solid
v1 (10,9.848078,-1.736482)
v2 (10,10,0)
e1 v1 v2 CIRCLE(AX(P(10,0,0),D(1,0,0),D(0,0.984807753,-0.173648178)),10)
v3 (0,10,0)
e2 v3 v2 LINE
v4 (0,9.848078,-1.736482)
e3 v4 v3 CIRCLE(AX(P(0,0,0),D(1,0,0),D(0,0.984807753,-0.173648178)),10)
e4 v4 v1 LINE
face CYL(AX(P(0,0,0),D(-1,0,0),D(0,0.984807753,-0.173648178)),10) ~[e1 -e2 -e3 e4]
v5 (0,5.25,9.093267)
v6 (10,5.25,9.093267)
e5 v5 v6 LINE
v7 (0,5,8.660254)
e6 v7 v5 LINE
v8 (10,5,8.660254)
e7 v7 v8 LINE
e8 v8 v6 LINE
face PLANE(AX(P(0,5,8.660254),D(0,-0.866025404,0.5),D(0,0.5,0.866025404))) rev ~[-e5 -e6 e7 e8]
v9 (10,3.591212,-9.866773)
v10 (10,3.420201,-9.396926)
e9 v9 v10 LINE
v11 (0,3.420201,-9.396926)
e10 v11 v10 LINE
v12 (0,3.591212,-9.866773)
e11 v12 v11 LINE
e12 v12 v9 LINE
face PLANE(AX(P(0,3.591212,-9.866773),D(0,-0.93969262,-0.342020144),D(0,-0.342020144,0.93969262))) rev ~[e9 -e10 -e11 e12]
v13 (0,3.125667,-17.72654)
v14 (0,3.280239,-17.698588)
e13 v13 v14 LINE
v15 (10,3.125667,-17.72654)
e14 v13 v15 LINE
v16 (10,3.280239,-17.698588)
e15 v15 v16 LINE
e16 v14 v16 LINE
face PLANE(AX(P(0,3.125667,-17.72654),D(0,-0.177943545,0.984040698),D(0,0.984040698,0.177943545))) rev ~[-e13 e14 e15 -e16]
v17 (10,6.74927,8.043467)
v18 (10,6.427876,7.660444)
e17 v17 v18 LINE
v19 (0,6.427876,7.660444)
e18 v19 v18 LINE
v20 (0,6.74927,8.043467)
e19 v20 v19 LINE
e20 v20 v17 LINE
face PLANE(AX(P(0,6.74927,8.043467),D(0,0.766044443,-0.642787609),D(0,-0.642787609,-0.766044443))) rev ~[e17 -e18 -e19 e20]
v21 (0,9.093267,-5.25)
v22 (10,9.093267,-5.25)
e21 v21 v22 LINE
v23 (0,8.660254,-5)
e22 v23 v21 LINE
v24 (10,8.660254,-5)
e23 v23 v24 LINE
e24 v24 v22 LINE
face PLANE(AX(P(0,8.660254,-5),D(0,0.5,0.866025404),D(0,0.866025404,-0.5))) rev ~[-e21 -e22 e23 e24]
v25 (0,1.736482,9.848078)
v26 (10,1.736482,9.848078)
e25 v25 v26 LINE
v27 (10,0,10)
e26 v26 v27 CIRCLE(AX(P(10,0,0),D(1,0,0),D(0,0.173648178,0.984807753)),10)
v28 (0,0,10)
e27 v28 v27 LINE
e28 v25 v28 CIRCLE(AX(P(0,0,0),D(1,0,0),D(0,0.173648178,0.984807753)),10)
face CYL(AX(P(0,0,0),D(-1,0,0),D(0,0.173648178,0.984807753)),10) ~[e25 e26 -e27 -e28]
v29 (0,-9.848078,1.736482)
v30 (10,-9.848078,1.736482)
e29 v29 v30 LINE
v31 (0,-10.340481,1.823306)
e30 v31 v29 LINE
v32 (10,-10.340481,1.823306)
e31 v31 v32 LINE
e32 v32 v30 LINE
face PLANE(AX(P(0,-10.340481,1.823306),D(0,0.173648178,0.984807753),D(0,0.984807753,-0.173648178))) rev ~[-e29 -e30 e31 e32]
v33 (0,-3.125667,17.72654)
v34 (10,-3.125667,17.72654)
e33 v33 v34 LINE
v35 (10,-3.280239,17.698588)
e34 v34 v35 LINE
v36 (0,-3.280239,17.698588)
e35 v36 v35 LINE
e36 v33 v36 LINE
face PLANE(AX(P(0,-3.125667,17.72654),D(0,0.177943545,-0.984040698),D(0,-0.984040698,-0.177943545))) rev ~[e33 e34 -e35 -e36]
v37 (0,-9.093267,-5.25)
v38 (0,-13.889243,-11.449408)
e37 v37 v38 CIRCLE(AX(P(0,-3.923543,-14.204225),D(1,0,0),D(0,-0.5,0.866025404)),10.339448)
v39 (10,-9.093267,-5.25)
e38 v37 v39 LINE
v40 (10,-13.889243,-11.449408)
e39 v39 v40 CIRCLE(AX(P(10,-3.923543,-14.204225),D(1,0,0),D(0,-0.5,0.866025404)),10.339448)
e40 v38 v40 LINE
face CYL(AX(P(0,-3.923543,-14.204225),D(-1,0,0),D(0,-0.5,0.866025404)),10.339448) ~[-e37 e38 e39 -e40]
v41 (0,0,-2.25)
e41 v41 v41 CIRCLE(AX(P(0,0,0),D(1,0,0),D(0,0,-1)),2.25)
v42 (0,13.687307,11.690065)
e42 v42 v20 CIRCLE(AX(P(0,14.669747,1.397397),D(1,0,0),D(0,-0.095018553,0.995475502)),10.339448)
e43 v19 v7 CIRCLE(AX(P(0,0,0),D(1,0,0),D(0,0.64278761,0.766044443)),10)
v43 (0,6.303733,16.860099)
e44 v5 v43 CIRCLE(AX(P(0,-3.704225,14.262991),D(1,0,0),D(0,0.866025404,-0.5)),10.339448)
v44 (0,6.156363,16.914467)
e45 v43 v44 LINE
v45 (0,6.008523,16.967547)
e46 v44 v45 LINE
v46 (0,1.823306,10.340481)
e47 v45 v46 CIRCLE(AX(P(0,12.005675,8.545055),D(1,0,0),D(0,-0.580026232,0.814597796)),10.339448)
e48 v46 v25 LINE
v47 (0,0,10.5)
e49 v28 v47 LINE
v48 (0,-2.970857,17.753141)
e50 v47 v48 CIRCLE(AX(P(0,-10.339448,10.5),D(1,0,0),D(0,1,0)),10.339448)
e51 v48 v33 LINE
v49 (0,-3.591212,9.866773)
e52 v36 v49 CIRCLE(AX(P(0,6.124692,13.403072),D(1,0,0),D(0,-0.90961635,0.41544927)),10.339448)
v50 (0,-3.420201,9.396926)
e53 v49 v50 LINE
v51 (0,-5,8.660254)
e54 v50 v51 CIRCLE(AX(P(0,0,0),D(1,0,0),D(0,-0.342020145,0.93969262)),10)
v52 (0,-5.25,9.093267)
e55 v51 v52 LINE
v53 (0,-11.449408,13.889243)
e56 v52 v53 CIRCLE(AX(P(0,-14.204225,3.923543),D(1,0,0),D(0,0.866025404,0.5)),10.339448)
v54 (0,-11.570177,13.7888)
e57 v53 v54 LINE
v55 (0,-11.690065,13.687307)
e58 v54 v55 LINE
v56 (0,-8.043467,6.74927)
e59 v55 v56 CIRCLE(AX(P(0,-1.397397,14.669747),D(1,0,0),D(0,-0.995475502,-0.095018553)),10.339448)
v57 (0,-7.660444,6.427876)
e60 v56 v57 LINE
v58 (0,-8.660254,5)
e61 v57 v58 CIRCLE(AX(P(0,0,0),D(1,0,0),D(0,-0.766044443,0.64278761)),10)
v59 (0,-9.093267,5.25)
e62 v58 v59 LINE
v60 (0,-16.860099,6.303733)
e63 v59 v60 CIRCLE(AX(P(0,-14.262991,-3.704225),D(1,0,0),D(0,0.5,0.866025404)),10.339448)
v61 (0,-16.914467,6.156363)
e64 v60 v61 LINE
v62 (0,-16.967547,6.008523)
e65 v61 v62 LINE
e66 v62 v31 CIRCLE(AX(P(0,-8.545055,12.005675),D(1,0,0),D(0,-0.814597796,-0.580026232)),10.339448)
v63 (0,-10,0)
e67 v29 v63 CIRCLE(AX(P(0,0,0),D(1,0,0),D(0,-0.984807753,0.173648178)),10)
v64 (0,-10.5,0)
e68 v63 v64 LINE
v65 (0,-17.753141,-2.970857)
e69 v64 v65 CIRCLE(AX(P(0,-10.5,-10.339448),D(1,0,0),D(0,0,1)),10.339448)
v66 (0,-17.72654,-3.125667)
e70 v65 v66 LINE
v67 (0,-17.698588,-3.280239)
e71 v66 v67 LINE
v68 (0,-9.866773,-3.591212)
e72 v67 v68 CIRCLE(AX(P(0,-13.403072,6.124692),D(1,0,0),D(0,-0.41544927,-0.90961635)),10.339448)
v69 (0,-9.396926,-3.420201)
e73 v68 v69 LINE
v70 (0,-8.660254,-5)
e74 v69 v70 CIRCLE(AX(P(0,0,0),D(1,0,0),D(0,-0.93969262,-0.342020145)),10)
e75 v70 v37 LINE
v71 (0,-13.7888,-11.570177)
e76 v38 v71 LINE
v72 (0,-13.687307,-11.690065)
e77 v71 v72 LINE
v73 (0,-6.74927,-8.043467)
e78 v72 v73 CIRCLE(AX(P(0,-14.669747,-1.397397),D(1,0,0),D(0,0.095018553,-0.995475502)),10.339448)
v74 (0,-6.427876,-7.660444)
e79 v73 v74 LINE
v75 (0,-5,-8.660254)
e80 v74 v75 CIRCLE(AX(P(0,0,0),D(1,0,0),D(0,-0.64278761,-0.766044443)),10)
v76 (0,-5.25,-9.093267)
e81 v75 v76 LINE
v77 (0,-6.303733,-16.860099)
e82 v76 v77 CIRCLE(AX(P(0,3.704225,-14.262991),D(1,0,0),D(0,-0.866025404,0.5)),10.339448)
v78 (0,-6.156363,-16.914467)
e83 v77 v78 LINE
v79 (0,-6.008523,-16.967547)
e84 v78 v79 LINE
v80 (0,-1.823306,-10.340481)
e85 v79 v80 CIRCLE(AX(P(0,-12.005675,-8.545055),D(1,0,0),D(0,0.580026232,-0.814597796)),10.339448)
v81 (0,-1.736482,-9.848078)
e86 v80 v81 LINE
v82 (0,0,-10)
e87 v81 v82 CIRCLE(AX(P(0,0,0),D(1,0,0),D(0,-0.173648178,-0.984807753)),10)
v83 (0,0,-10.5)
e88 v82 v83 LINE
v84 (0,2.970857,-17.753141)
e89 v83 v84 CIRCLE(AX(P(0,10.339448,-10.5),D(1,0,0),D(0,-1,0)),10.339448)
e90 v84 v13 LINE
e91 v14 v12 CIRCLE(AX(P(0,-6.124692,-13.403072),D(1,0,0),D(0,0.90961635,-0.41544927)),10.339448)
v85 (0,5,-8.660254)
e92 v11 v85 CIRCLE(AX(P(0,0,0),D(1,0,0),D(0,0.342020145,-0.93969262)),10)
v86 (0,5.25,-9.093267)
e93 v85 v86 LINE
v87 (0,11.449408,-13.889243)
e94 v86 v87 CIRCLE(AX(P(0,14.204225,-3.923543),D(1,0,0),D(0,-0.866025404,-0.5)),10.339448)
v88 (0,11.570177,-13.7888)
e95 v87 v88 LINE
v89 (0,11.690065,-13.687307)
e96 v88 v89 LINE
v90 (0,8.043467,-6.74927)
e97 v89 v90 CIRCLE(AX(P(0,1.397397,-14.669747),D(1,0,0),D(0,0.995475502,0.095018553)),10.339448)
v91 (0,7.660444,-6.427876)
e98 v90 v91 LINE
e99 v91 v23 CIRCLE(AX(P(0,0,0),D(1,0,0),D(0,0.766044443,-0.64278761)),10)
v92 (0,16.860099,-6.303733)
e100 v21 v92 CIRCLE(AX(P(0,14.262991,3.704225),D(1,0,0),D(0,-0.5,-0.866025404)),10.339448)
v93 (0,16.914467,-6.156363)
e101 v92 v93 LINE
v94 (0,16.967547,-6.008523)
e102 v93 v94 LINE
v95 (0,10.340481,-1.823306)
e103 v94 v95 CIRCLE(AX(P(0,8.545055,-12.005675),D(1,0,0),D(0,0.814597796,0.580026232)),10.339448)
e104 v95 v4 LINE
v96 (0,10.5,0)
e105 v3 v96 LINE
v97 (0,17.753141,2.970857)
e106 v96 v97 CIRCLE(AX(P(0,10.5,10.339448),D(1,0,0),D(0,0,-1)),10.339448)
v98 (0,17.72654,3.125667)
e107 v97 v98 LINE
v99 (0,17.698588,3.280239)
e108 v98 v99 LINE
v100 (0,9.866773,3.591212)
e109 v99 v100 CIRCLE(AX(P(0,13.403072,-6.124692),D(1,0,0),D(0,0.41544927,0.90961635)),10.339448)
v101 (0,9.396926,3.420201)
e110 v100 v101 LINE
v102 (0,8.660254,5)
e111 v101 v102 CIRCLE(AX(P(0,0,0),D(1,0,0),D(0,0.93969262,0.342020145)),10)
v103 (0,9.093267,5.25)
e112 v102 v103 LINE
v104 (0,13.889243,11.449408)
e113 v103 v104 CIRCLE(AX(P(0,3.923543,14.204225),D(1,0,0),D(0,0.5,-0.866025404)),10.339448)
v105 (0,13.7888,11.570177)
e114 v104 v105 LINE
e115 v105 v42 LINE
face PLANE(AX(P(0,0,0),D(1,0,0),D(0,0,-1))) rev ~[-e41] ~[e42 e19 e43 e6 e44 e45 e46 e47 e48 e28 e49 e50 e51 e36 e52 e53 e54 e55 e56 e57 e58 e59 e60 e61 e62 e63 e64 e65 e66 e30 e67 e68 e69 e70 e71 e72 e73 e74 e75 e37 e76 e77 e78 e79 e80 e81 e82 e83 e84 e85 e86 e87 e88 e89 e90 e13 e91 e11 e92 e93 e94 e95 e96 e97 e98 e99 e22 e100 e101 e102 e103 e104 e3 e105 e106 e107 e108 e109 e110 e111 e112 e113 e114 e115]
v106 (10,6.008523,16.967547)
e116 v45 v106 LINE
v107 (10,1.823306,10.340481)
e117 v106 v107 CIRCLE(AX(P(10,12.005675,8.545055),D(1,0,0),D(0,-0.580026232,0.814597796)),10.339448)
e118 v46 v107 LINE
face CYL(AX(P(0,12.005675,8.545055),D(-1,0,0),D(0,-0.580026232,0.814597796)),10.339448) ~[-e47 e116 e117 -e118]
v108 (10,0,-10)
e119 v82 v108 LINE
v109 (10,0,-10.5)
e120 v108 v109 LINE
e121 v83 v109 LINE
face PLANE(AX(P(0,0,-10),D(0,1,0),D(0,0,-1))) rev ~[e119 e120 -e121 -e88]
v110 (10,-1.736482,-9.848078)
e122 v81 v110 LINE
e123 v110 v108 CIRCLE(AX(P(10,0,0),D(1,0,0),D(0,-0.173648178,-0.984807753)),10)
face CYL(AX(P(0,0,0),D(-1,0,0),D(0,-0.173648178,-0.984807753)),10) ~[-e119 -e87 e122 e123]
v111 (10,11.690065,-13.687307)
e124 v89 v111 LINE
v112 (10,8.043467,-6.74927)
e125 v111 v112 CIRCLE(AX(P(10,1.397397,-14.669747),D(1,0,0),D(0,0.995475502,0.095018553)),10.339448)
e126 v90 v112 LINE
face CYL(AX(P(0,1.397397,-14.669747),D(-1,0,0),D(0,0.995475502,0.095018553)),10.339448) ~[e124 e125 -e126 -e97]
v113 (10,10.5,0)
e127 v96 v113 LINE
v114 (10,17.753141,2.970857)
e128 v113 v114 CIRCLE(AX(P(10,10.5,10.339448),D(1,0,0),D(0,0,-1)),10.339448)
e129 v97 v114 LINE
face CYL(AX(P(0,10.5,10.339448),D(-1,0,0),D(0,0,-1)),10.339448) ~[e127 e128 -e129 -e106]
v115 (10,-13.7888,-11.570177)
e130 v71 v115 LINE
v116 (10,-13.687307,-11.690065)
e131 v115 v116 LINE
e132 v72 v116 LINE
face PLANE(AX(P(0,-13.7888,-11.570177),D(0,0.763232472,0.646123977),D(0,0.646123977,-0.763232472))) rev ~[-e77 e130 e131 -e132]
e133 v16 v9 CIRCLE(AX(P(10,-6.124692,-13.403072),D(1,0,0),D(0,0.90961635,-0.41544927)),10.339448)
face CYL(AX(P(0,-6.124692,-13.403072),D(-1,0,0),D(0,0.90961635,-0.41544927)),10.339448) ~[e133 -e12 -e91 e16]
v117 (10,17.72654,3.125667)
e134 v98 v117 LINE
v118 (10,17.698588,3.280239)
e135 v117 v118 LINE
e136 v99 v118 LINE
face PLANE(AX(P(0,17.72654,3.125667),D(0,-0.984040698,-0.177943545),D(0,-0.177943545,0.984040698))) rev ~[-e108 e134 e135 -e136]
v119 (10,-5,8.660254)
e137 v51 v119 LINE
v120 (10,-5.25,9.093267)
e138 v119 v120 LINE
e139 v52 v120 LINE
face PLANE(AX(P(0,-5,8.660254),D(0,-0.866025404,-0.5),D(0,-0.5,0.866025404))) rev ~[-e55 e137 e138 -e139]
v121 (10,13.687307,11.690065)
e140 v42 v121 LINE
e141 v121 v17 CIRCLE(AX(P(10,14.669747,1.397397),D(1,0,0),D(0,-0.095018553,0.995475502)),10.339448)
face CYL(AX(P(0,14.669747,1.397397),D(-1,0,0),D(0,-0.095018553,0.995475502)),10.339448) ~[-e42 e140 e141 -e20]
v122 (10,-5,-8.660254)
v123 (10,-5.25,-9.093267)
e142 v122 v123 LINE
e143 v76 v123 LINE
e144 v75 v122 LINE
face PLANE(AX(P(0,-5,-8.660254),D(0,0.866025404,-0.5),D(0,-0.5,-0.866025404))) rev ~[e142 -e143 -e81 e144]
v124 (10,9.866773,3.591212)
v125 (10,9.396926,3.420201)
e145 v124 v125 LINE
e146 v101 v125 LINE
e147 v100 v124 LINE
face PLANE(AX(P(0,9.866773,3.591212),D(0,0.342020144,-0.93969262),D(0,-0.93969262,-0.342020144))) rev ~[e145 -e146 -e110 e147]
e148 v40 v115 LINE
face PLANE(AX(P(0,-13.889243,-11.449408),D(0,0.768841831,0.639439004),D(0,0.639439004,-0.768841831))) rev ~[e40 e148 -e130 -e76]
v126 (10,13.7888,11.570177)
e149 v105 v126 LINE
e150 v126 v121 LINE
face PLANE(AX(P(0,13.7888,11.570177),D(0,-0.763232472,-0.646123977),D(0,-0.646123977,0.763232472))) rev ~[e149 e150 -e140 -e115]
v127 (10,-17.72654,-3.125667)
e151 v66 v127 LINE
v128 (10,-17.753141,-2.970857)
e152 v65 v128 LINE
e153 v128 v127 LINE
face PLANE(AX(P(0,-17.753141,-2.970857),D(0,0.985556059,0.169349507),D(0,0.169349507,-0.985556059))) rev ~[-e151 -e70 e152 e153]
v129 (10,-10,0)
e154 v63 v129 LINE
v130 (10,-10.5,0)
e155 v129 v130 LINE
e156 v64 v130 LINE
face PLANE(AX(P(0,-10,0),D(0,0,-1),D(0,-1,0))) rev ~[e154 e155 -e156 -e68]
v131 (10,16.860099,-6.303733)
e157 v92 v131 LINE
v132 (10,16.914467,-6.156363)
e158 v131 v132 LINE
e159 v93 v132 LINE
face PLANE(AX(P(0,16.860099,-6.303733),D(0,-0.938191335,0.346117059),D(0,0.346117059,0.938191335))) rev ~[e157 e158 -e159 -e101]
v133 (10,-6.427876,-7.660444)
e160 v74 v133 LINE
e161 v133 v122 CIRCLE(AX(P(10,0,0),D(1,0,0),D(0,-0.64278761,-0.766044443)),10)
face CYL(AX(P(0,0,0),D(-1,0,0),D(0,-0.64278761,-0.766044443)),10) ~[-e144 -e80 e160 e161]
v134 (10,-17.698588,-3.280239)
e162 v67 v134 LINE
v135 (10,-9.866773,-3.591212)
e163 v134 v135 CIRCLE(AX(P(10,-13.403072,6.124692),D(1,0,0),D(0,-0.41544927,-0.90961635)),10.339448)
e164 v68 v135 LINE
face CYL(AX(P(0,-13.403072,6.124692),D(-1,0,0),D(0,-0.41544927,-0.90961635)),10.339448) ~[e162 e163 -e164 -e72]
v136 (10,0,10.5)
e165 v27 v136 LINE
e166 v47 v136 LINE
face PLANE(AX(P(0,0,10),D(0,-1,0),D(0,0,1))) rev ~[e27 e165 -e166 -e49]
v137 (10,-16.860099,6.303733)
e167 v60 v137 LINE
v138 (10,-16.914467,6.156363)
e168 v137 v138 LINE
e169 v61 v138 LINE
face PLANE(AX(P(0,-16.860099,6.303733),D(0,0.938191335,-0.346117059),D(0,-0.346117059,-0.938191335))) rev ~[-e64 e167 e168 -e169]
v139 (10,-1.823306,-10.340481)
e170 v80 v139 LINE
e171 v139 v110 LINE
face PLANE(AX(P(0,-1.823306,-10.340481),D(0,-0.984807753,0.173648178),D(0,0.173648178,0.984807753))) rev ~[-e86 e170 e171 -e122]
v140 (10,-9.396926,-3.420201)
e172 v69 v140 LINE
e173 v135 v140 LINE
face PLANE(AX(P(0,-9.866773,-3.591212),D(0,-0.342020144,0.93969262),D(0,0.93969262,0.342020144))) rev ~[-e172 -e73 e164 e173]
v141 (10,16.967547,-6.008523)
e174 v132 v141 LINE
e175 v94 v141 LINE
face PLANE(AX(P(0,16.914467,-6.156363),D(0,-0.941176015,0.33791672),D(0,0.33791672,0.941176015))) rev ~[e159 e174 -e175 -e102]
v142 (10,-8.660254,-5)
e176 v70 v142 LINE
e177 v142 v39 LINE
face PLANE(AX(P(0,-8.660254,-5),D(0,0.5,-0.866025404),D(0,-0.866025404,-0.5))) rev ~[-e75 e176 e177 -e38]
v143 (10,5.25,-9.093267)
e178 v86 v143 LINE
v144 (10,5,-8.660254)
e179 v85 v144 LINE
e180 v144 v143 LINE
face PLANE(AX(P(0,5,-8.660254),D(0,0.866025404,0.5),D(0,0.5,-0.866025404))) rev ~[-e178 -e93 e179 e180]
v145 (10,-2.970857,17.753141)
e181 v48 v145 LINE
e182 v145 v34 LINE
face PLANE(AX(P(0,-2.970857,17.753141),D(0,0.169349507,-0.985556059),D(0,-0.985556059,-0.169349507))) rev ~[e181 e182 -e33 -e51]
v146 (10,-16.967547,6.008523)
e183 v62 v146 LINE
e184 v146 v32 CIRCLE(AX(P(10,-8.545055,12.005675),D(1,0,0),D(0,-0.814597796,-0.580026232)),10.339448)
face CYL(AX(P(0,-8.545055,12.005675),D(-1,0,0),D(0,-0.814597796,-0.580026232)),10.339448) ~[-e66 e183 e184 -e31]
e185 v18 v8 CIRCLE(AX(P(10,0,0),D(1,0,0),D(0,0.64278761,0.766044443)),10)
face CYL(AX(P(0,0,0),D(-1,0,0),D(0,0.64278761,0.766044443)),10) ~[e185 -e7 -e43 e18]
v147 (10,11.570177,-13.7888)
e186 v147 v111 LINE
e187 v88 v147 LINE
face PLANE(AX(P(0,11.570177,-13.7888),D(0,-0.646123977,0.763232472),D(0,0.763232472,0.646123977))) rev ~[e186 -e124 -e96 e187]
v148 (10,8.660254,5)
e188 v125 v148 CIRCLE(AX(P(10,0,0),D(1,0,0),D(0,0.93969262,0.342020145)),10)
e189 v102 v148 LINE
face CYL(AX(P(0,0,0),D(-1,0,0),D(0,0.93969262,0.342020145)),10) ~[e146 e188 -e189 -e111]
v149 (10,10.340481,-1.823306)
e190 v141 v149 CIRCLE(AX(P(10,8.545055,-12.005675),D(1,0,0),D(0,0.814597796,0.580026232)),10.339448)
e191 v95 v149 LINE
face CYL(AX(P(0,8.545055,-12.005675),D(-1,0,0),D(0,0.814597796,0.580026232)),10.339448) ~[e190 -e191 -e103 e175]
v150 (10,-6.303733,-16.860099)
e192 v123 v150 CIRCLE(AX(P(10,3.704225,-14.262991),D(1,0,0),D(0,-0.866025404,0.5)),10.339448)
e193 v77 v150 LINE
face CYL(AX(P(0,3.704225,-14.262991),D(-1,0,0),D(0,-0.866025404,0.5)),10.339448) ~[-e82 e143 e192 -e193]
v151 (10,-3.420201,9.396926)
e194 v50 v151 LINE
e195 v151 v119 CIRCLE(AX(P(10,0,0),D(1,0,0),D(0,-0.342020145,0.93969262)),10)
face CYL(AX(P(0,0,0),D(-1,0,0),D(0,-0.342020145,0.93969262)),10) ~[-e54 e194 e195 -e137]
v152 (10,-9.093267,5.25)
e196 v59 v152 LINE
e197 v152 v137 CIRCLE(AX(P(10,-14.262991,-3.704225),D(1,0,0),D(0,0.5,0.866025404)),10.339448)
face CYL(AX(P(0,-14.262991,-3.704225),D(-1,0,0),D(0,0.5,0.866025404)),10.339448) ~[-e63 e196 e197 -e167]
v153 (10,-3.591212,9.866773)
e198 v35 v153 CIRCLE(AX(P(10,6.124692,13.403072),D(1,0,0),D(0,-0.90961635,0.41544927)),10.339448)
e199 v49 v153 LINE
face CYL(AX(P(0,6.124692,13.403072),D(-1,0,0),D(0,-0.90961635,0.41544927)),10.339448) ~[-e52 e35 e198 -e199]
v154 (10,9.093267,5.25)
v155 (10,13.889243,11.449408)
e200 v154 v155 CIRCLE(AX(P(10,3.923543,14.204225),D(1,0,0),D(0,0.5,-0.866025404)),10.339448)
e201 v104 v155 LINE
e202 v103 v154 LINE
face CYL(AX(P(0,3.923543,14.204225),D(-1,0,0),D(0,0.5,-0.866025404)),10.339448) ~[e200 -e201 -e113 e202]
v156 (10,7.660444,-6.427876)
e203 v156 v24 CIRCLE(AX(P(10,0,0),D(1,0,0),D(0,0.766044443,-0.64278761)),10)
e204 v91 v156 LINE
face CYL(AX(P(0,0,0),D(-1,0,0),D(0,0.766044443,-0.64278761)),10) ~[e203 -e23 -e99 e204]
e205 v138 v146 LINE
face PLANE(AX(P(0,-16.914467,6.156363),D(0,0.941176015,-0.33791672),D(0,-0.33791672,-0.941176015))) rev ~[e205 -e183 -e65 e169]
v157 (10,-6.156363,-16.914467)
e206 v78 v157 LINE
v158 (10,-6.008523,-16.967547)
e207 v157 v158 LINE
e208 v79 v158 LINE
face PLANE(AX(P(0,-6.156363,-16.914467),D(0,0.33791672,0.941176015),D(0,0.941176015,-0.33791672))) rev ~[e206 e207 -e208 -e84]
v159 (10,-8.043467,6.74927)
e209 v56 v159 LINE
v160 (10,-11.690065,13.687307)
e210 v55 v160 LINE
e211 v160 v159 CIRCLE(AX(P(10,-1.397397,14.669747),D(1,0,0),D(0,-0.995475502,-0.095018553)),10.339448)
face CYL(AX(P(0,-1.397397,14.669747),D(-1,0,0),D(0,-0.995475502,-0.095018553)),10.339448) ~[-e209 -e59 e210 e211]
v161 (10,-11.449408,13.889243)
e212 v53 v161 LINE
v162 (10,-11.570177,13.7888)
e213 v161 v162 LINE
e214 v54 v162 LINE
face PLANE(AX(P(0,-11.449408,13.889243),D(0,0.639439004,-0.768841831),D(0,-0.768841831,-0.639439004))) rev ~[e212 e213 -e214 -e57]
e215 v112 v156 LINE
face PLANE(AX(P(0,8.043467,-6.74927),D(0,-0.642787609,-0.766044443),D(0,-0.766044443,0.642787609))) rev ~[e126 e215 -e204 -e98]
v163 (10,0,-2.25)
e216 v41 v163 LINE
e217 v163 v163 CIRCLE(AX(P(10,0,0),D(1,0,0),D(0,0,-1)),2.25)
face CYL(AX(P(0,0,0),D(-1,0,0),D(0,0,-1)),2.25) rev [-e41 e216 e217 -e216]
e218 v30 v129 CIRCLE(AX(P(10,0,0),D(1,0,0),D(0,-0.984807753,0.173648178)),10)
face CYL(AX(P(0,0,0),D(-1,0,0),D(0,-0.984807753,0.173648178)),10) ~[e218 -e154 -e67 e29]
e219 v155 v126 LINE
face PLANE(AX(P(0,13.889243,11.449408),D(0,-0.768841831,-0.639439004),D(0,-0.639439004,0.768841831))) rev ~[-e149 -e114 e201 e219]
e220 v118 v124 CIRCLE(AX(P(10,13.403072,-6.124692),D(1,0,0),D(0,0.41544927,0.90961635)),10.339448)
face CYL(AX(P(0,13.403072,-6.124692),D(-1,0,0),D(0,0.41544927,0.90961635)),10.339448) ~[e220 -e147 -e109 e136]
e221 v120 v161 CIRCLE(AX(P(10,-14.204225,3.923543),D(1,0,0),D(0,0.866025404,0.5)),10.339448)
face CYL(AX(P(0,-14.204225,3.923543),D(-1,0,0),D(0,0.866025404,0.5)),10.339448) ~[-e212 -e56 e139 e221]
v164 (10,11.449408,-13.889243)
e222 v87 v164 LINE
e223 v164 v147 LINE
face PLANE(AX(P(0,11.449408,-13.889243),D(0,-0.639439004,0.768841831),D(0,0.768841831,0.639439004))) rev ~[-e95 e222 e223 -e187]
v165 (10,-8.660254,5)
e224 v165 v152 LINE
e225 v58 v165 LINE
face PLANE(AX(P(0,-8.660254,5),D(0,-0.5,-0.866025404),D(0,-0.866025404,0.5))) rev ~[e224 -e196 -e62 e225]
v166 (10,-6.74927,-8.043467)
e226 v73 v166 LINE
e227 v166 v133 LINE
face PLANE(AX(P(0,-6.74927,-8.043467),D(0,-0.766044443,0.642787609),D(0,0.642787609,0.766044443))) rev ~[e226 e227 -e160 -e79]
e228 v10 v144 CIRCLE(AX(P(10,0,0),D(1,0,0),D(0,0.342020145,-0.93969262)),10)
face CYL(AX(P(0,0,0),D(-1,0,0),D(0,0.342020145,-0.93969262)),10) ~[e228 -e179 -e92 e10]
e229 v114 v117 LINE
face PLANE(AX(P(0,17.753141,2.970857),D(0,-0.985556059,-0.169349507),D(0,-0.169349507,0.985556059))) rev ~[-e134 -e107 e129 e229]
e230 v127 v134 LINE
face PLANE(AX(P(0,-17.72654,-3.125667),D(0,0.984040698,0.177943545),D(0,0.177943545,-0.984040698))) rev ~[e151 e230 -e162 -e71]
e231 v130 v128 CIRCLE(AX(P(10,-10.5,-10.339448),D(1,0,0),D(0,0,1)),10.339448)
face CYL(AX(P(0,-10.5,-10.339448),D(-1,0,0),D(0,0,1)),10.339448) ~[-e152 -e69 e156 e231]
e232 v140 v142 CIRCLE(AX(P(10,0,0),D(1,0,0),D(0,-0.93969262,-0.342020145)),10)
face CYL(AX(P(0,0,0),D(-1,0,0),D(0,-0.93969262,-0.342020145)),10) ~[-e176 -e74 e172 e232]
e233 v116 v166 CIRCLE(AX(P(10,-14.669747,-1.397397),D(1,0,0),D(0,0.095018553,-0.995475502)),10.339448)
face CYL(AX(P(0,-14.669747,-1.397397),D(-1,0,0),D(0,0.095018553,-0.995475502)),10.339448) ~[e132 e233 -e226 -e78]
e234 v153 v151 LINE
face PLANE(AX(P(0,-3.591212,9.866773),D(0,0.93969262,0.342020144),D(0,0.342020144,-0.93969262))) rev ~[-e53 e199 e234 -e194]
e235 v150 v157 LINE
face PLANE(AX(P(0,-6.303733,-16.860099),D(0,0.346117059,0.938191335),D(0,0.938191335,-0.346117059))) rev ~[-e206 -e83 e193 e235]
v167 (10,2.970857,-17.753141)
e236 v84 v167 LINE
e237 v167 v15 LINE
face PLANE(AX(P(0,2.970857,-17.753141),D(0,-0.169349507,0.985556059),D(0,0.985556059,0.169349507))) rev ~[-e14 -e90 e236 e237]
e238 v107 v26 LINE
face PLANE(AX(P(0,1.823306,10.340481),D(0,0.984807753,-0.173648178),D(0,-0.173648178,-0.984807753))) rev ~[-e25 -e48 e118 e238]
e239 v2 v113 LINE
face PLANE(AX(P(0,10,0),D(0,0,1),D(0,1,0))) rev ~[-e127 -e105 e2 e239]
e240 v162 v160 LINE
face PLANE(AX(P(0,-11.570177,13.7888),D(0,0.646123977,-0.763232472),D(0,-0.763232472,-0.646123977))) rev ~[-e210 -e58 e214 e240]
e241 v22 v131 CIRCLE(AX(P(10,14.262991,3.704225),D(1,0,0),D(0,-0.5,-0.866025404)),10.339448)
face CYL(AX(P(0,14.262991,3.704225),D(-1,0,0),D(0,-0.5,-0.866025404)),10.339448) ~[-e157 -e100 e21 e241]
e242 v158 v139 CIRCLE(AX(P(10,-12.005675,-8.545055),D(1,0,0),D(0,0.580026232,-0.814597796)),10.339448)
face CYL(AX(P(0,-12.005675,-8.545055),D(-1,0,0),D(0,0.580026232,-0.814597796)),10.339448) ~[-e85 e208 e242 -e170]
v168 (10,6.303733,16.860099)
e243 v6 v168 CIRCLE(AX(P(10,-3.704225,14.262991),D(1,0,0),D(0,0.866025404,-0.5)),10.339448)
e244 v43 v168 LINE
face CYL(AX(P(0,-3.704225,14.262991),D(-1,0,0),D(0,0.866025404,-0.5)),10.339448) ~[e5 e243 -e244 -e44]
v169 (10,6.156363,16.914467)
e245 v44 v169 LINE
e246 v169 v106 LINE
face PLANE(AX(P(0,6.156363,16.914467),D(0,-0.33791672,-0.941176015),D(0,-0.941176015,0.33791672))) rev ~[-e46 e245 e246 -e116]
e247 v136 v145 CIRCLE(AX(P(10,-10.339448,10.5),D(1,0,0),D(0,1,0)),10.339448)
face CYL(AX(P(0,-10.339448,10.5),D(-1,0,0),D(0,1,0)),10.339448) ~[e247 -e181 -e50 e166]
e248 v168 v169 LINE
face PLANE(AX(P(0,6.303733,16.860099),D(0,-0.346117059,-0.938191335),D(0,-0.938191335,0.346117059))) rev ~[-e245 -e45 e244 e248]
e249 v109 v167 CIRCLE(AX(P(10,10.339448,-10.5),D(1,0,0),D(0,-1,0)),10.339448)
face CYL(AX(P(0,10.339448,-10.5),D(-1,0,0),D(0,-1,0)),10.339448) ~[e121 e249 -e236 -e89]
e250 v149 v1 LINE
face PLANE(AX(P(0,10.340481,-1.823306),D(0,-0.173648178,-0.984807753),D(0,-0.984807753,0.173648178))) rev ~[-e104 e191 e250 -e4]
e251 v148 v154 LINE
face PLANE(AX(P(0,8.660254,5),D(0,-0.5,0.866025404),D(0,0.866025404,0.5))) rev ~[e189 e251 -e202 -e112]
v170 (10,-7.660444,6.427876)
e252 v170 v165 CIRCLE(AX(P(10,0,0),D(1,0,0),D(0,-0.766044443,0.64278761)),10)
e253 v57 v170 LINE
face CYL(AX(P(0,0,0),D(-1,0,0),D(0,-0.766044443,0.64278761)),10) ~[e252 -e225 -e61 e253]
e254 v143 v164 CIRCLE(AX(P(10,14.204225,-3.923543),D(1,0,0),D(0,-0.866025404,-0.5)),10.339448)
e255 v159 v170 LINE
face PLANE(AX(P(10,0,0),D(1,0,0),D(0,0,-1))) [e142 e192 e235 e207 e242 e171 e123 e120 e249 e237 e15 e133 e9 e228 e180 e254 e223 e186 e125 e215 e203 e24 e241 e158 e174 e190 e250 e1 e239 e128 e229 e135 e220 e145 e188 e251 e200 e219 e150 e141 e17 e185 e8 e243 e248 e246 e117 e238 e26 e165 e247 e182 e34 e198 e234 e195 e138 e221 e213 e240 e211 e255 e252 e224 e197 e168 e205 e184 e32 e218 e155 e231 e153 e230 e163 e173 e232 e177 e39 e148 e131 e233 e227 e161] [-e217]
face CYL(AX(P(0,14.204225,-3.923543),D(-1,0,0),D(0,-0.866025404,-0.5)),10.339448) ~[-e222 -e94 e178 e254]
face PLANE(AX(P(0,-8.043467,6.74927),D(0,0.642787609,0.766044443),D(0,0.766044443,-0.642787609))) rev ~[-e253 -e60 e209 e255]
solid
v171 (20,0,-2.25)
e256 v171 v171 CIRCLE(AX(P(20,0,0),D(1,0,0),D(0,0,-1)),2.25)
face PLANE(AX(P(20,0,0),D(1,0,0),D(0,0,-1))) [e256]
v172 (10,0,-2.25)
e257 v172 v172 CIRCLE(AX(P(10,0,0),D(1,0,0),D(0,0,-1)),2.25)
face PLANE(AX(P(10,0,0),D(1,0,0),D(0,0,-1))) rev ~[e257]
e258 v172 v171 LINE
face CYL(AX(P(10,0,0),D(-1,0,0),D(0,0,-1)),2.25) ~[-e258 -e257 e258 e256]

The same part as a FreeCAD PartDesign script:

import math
import FreeCAD as App
import Part
import Sketcher

V = App.Vector
Q = App.Units.Quantity

doc = App.newDocument("Part")
body = doc.addObject("PartDesign::Body", "Body")

# Sketch on YZ plane
sketch1 = doc.addObject("Sketcher::SketchObject", "Sketch")
body.addObject(sketch1)
sketch1.AttachmentSupport = (doc.YZ_Plane, [""])
sketch1.MapMode = "FlatFace"
sketch1.addGeometry([
    Part.LineSegment(V(3.59, -9.87, 0), V(3.42, -9.4, 0)),  # 0
    Part.ArcOfCircle(Part.Circle(V(0, 0, 0), V(0, 0, 1), 10), math.radians(-70), math.radians(-60)),  # 1
    Part.LineSegment(V(5, -8.66, 0), V(5.25, -9.09, 0)),  # 2
    Part.ArcOfCircle(Part.Circle(V(14.2, -3.92, 0), V(0, 0, 1), 10.34), math.radians(-150), math.radians(-105)),  # 3
    Part.LineSegment(V(11.45, -13.89, 0), V(11.57, -13.79, 0)),  # 4
    Part.LineSegment(V(11.57, -13.79, 0), V(11.69, -13.69, 0)),  # 5
    Part.ArcOfCircle(Part.Circle(V(1.4, -14.67, 0), V(0, 0, 1), 10.34), math.radians(5), math.radians(50)),  # 6
    Part.LineSegment(V(8.04, -6.75, 0), V(7.66, -6.43, 0)),  # 7
    Part.ArcOfCircle(Part.Circle(V(0, 0, 0), V(0, 0, 1), 10), math.radians(-40), math.radians(-30)),  # 8
    Part.LineSegment(V(8.66, -5, 0), V(9.09, -5.25, 0)),  # 9
    Part.ArcOfCircle(Part.Circle(V(14.26, 3.7, 0), V(0, 0, 1), 10.34), math.radians(-120), math.radians(-75)),  # 10
    Part.LineSegment(V(16.86, -6.3, 0), V(16.91, -6.16, 0)),  # 11
    Part.LineSegment(V(16.91, -6.16, 0), V(16.97, -6.01, 0)),  # 12
    Part.ArcOfCircle(Part.Circle(V(8.55, -12.01, 0), V(0, 0, 1), 10.34), math.radians(35), math.radians(80)),  # 13
    Part.LineSegment(V(10.34, -1.82, 0), V(9.85, -1.74, 0)),  # 14
    Part.ArcOfCircle(Part.Circle(V(0, 0, 0), V(0, 0, 1), 10), math.radians(-10), math.radians(0)),  # 15
    Part.LineSegment(V(10, 0, 0), V(10.5, 0, 0)),  # 16
    Part.ArcOfCircle(Part.Circle(V(10.5, 10.34, 0), V(0, 0, 1), 10.34), math.radians(-90), math.radians(-45)),  # 17
    Part.LineSegment(V(17.75, 2.97, 0), V(17.73, 3.13, 0)),  # 18
    Part.LineSegment(V(17.73, 3.13, 0), V(17.7, 3.28, 0)),  # 19
    Part.ArcOfCircle(Part.Circle(V(13.4, -6.12, 0), V(0, 0, 1), 10.34), math.radians(65), math.radians(110)),  # 20
    Part.LineSegment(V(9.87, 3.59, 0), V(9.4, 3.42, 0)),  # 21
    Part.ArcOfCircle(Part.Circle(V(0, 0, 0), V(0, 0, 1), 10), math.radians(20), math.radians(30)),  # 22
    Part.LineSegment(V(8.66, 5, 0), V(9.09, 5.25, 0)),  # 23
    Part.ArcOfCircle(Part.Circle(V(3.92, 14.2, 0), V(0, 0, 1), 10.34), math.radians(-60), math.radians(-15)),  # 24
    Part.LineSegment(V(13.89, 11.45, 0), V(13.79, 11.57, 0)),  # 25
    Part.LineSegment(V(13.79, 11.57, 0), V(13.69, 11.69, 0)),  # 26
    Part.ArcOfCircle(Part.Circle(V(14.67, 1.4, 0), V(0, 0, 1), 10.34), math.radians(95), math.radians(140)),  # 27
    Part.LineSegment(V(6.75, 8.04, 0), V(6.43, 7.66, 0)),  # 28
    Part.ArcOfCircle(Part.Circle(V(0, 0, 0), V(0, 0, 1), 10), math.radians(50), math.radians(60)),  # 29
    Part.LineSegment(V(5, 8.66, 0), V(5.25, 9.09, 0)),  # 30
    Part.ArcOfCircle(Part.Circle(V(-3.7, 14.26, 0), V(0, 0, 1), 10.34), math.radians(-30), math.radians(15)),  # 31
    Part.LineSegment(V(6.3, 16.86, 0), V(6.16, 16.91, 0)),  # 32
    Part.LineSegment(V(6.16, 16.91, 0), V(6.01, 16.97, 0)),  # 33
    Part.ArcOfCircle(Part.Circle(V(12.01, 8.55, 0), V(0, 0, 1), 10.34), math.radians(125), math.radians(170)),  # 34
    Part.LineSegment(V(1.82, 10.34, 0), V(1.74, 9.85, 0)),  # 35
    Part.ArcOfCircle(Part.Circle(V(0, 0, 0), V(0, 0, 1), 10), math.radians(80), math.radians(90)),  # 36
    Part.LineSegment(V(0, 10, 0), V(0, 10.5, 0)),  # 37
    Part.ArcOfCircle(Part.Circle(V(-10.34, 10.5, 0), V(0, 0, 1), 10.34), math.radians(0), math.radians(45)),  # 38
    Part.LineSegment(V(-2.97, 17.75, 0), V(-3.13, 17.73, 0)),  # 39
    Part.LineSegment(V(-3.13, 17.73, 0), V(-3.28, 17.7, 0)),  # 40
    Part.ArcOfCircle(Part.Circle(V(6.12, 13.4, 0), V(0, 0, 1), 10.34), math.radians(155), math.radians(200)),  # 41
    Part.LineSegment(V(-3.59, 9.87, 0), V(-3.42, 9.4, 0)),  # 42
    Part.ArcOfCircle(Part.Circle(V(0, 0, 0), V(0, 0, 1), 10), math.radians(110), math.radians(120)),  # 43
    Part.LineSegment(V(-5, 8.66, 0), V(-5.25, 9.09, 0)),  # 44
    Part.ArcOfCircle(Part.Circle(V(-14.2, 3.92, 0), V(0, 0, 1), 10.34), math.radians(30), math.radians(75)),  # 45
    Part.LineSegment(V(-11.45, 13.89, 0), V(-11.57, 13.79, 0)),  # 46
    Part.LineSegment(V(-11.57, 13.79, 0), V(-11.69, 13.69, 0)),  # 47
    Part.ArcOfCircle(Part.Circle(V(-1.4, 14.67, 0), V(0, 0, 1), 10.34), math.radians(-175), math.radians(-130)),  # 48
    Part.LineSegment(V(-8.04, 6.75, 0), V(-7.66, 6.43, 0)),  # 49
    Part.ArcOfCircle(Part.Circle(V(0, 0, 0), V(0, 0, 1), 10), math.radians(140), math.radians(150)),  # 50
    Part.LineSegment(V(-8.66, 5, 0), V(-9.09, 5.25, 0)),  # 51
    Part.ArcOfCircle(Part.Circle(V(-14.26, -3.7, 0), V(0, 0, 1), 10.34), math.radians(60), math.radians(105)),  # 52
    Part.LineSegment(V(-16.86, 6.3, 0), V(-16.91, 6.16, 0)),  # 53
    Part.LineSegment(V(-16.91, 6.16, 0), V(-16.97, 6.01, 0)),  # 54
    Part.ArcOfCircle(Part.Circle(V(-8.55, 12.01, 0), V(0, 0, 1), 10.34), math.radians(-145), math.radians(-100)),  # 55
    Part.LineSegment(V(-10.34, 1.82, 0), V(-9.85, 1.74, 0)),  # 56
    Part.ArcOfCircle(Part.Circle(V(0, 0, 0), V(0, 0, 1), 10), math.radians(170), math.radians(180)),  # 57
    Part.LineSegment(V(-10, 0, 0), V(-10.5, 0, 0)),  # 58
    Part.ArcOfCircle(Part.Circle(V(-10.5, -10.34, 0), V(0, 0, 1), 10.34), math.radians(90), math.radians(135)),  # 59
    Part.LineSegment(V(-17.75, -2.97, 0), V(-17.73, -3.13, 0)),  # 60
    Part.LineSegment(V(-17.73, -3.13, 0), V(-17.7, -3.28, 0)),  # 61
    Part.ArcOfCircle(Part.Circle(V(-13.4, 6.12, 0), V(0, 0, 1), 10.34), math.radians(-115), math.radians(-70)),  # 62
    Part.LineSegment(V(-9.87, -3.59, 0), V(-9.4, -3.42, 0)),  # 63
    Part.ArcOfCircle(Part.Circle(V(0, 0, 0), V(0, 0, 1), 10), math.radians(-160), math.radians(-150)),  # 64
    Part.LineSegment(V(-8.66, -5, 0), V(-9.09, -5.25, 0)),  # 65
    Part.ArcOfCircle(Part.Circle(V(-3.92, -14.2, 0), V(0, 0, 1), 10.34), math.radians(120), math.radians(165)),  # 66
    Part.LineSegment(V(-13.89, -11.45, 0), V(-13.79, -11.57, 0)),  # 67
    Part.LineSegment(V(-13.79, -11.57, 0), V(-13.69, -11.69, 0)),  # 68
    Part.ArcOfCircle(Part.Circle(V(-14.67, -1.4, 0), V(0, 0, 1), 10.34), math.radians(-85), math.radians(-40)),  # 69
    Part.LineSegment(V(-6.75, -8.04, 0), V(-6.43, -7.66, 0)),  # 70
    Part.ArcOfCircle(Part.Circle(V(0, 0, 0), V(0, 0, 1), 10), math.radians(-130), math.radians(-120)),  # 71
    Part.LineSegment(V(-5, -8.66, 0), V(-5.25, -9.09, 0)),  # 72
    Part.ArcOfCircle(Part.Circle(V(3.7, -14.26, 0), V(0, 0, 1), 10.34), math.radians(150), math.radians(195)),  # 73
    Part.LineSegment(V(-6.3, -16.86, 0), V(-6.16, -16.91, 0)),  # 74
    Part.LineSegment(V(-6.16, -16.91, 0), V(-6.01, -16.97, 0)),  # 75
    Part.ArcOfCircle(Part.Circle(V(-12.01, -8.55, 0), V(0, 0, 1), 10.34), math.radians(-55), math.radians(-10)),  # 76
    Part.LineSegment(V(-1.82, -10.34, 0), V(-1.74, -9.85, 0)),  # 77
    Part.ArcOfCircle(Part.Circle(V(0, 0, 0), V(0, 0, 1), 10), math.radians(-100), math.radians(-90)),  # 78
    Part.LineSegment(V(0, -10, 0), V(0, -10.5, 0)),  # 79
    Part.ArcOfCircle(Part.Circle(V(10.34, -10.5, 0), V(0, 0, 1), 10.34), math.radians(180), math.radians(225)),  # 80
    Part.LineSegment(V(2.97, -17.75, 0), V(3.13, -17.73, 0)),  # 81
    Part.LineSegment(V(3.13, -17.73, 0), V(3.28, -17.7, 0)),  # 82
    Part.ArcOfCircle(Part.Circle(V(-6.12, -13.4, 0), V(0, 0, 1), 10.34), math.radians(-25), math.radians(20)),  # 83
    Part.Circle(V(0, 0, 0), V(0, 0, 1), 2.25),  # 84
], False)
sketch1.addConstraint([
    Sketcher.Constraint("Coincident", 0, 2, 1, 1),
    Sketcher.Constraint("Coincident", 1, 2, 2, 1),
    Sketcher.Constraint("Tangent", 2, 2, 3, 1),
    Sketcher.Constraint("Coincident", 3, 2, 4, 1),
    Sketcher.Constraint("Coincident", 4, 2, 5, 1),
    Sketcher.Constraint("Coincident", 5, 2, 6, 1),
    Sketcher.Constraint("Tangent", 6, 2, 7, 1),
    Sketcher.Constraint("Coincident", 7, 2, 8, 1),
    Sketcher.Constraint("Coincident", 8, 2, 9, 1),
    Sketcher.Constraint("Tangent", 9, 2, 10, 1),
    Sketcher.Constraint("Coincident", 10, 2, 11, 1),
    Sketcher.Constraint("Coincident", 11, 2, 12, 1),
    Sketcher.Constraint("Coincident", 12, 2, 13, 1),
    Sketcher.Constraint("Tangent", 13, 2, 14, 1),
    Sketcher.Constraint("Coincident", 14, 2, 15, 1),
    Sketcher.Constraint("Coincident", 15, 2, 16, 1),
    Sketcher.Constraint("Tangent", 16, 2, 17, 1),
    Sketcher.Constraint("Coincident", 17, 2, 18, 1),
    Sketcher.Constraint("Coincident", 18, 2, 19, 1),
    Sketcher.Constraint("Coincident", 19, 2, 20, 1),
    Sketcher.Constraint("Tangent", 20, 2, 21, 1),
    Sketcher.Constraint("Coincident", 21, 2, 22, 1),
    Sketcher.Constraint("Coincident", 22, 2, 23, 1),
    Sketcher.Constraint("Tangent", 23, 2, 24, 1),
    Sketcher.Constraint("Coincident", 24, 2, 25, 1),
    Sketcher.Constraint("Coincident", 25, 2, 26, 1),
    Sketcher.Constraint("Coincident", 26, 2, 27, 1),
    Sketcher.Constraint("Tangent", 27, 2, 28, 1),
    Sketcher.Constraint("Coincident", 28, 2, 29, 1),
    Sketcher.Constraint("Coincident", 29, 2, 30, 1),
    Sketcher.Constraint("Tangent", 30, 2, 31, 1),
    Sketcher.Constraint("Coincident", 31, 2, 32, 1),
    Sketcher.Constraint("Coincident", 32, 2, 33, 1),
    Sketcher.Constraint("Coincident", 33, 2, 34, 1),
    Sketcher.Constraint("Tangent", 34, 2, 35, 1),
    Sketcher.Constraint("Coincident", 35, 2, 36, 1),
    Sketcher.Constraint("Coincident", 36, 2, 37, 1),
    Sketcher.Constraint("Tangent", 37, 2, 38, 1),
    Sketcher.Constraint("Coincident", 38, 2, 39, 1),
    Sketcher.Constraint("Coincident", 39, 2, 40, 1),
    Sketcher.Constraint("Coincident", 40, 2, 41, 1),
    Sketcher.Constraint("Tangent", 41, 2, 42, 1),
    Sketcher.Constraint("Coincident", 42, 2, 43, 1),
    Sketcher.Constraint("Coincident", 43, 2, 44, 1),
    Sketcher.Constraint("Tangent", 44, 2, 45, 1),
    Sketcher.Constraint("Coincident", 45, 2, 46, 1),
    Sketcher.Constraint("Coincident", 46, 2, 47, 1),
    Sketcher.Constraint("Coincident", 47, 2, 48, 1),
    Sketcher.Constraint("Tangent", 48, 2, 49, 1),
    Sketcher.Constraint("Coincident", 49, 2, 50, 1),
    Sketcher.Constraint("Coincident", 50, 2, 51, 1),
    Sketcher.Constraint("Tangent", 51, 2, 52, 1),
    Sketcher.Constraint("Coincident", 52, 2, 53, 1),
    Sketcher.Constraint("Coincident", 53, 2, 54, 1),
    Sketcher.Constraint("Coincident", 54, 2, 55, 1),
    Sketcher.Constraint("Tangent", 55, 2, 56, 1),
    Sketcher.Constraint("Coincident", 56, 2, 57, 1),
    Sketcher.Constraint("Coincident", 57, 2, 58, 1),
    Sketcher.Constraint("Tangent", 58, 2, 59, 1),
    Sketcher.Constraint("Coincident", 59, 2, 60, 1),
    Sketcher.Constraint("Coincident", 60, 2, 61, 1),
    Sketcher.Constraint("Coincident", 61, 2, 62, 1),
    Sketcher.Constraint("Tangent", 62, 2, 63, 1),
    Sketcher.Constraint("Coincident", 63, 2, 64, 1),
    Sketcher.Constraint("Coincident", 64, 2, 65, 1),
    Sketcher.Constraint("Tangent", 65, 2, 66, 1),
    Sketcher.Constraint("Coincident", 66, 2, 67, 1),
    Sketcher.Constraint("Coincident", 67, 2, 68, 1),
    Sketcher.Constraint("Coincident", 68, 2, 69, 1),
    Sketcher.Constraint("Tangent", 69, 2, 70, 1),
    Sketcher.Constraint("Coincident", 70, 2, 71, 1),
    Sketcher.Constraint("Coincident", 71, 2, 72, 1),
    Sketcher.Constraint("Tangent", 72, 2, 73, 1),
    Sketcher.Constraint("Coincident", 73, 2, 74, 1),
    Sketcher.Constraint("Coincident", 74, 2, 75, 1),
    Sketcher.Constraint("Coincident", 75, 2, 76, 1),
    Sketcher.Constraint("Tangent", 76, 2, 77, 1),
    Sketcher.Constraint("Coincident", 77, 2, 78, 1),
    Sketcher.Constraint("Coincident", 78, 2, 79, 1),
    Sketcher.Constraint("Tangent", 79, 2, 80, 1),
    Sketcher.Constraint("Coincident", 80, 2, 81, 1),
    Sketcher.Constraint("Coincident", 81, 2, 82, 1),
    Sketcher.Constraint("Coincident", 82, 2, 83, 1),
    Sketcher.Constraint("Tangent", 83, 2, 0, 1),
    Sketcher.Constraint("Horizontal", 16),
    Sketcher.Constraint("Vertical", 37),
    Sketcher.Constraint("Horizontal", 58),
    Sketcher.Constraint("Vertical", 79),
    Sketcher.Constraint("Coincident", 1, 3, -1, 1),
    Sketcher.Constraint("Coincident", 8, 3, -1, 1),
    Sketcher.Constraint("Coincident", 15, 3, -1, 1),
    Sketcher.Constraint("Coincident", 22, 3, -1, 1),
    Sketcher.Constraint("Coincident", 29, 3, -1, 1),
    Sketcher.Constraint("Coincident", 36, 3, -1, 1),
    Sketcher.Constraint("Coincident", 43, 3, -1, 1),
    Sketcher.Constraint("Coincident", 50, 3, -1, 1),
    Sketcher.Constraint("Coincident", 57, 3, -1, 1),
    Sketcher.Constraint("Coincident", 64, 3, -1, 1),
    Sketcher.Constraint("Coincident", 71, 3, -1, 1),
    Sketcher.Constraint("Coincident", 78, 3, -1, 1),
    Sketcher.Constraint("Coincident", 84, 3, -1, 1),
    Sketcher.Constraint("Equal", 3, 6),
    Sketcher.Constraint("Equal", 1, 8),
    Sketcher.Constraint("Equal", 6, 10),
    Sketcher.Constraint("Equal", 10, 13),
    Sketcher.Constraint("Equal", 8, 15),
    Sketcher.Constraint("Equal", 13, 17),
    Sketcher.Constraint("Equal", 17, 20),
    Sketcher.Constraint("Equal", 15, 22),
    Sketcher.Constraint("Equal", 20, 24),
    Sketcher.Constraint("Equal", 24, 27),
    Sketcher.Constraint("Equal", 22, 29),
    Sketcher.Constraint("Equal", 27, 31),
    Sketcher.Constraint("Equal", 31, 34),
    Sketcher.Constraint("Equal", 29, 36),
    Sketcher.Constraint("Equal", 34, 38),
    Sketcher.Constraint("Equal", 38, 41),
    Sketcher.Constraint("Equal", 36, 43),
    Sketcher.Constraint("Equal", 41, 45),
    Sketcher.Constraint("Equal", 45, 48),
    Sketcher.Constraint("Equal", 43, 50),
    Sketcher.Constraint("Equal", 48, 52),
    Sketcher.Constraint("Equal", 52, 55),
    Sketcher.Constraint("Equal", 50, 57),
    Sketcher.Constraint("Equal", 55, 59),
    Sketcher.Constraint("Equal", 59, 62),
    Sketcher.Constraint("Equal", 57, 64),
    Sketcher.Constraint("Equal", 62, 66),
    Sketcher.Constraint("Equal", 66, 69),
    Sketcher.Constraint("Equal", 64, 71),
    Sketcher.Constraint("Equal", 69, 73),
    Sketcher.Constraint("Equal", 73, 76),
    Sketcher.Constraint("Equal", 71, 78),
    Sketcher.Constraint("Equal", 76, 80),
    Sketcher.Constraint("Equal", 80, 83),
    Sketcher.Constraint("Symmetric", 3, 3, 45, 3, -1, 1),
    Sketcher.Constraint("Symmetric", 6, 3, 48, 3, -1, 1),
    Sketcher.Constraint("Symmetric", 10, 3, 52, 3, -1, 1),
    Sketcher.Constraint("Symmetric", 13, 3, 55, 3, -1, 1),
    Sketcher.Constraint("Symmetric", 17, 3, 59, 3, -1, 1),
    Sketcher.Constraint("Symmetric", 20, 3, 62, 3, -1, 1),
    Sketcher.Constraint("Symmetric", 24, 3, 66, 3, -1, 1),
    Sketcher.Constraint("Symmetric", 27, 3, 69, 3, -1, 1),
    Sketcher.Constraint("Symmetric", 31, 3, 73, 3, -1, 1),
    Sketcher.Constraint("Symmetric", 34, 3, 76, 3, -1, 1),
    Sketcher.Constraint("Symmetric", 38, 3, 80, 3, -1, 1),
    Sketcher.Constraint("Symmetric", 41, 3, 83, 3, -1, 1),
    Sketcher.Constraint("Symmetric", 4, 2, 46, 2, -1, 1),
    Sketcher.Constraint("Symmetric", 11, 2, 53, 2, -1, 1),
    Sketcher.Constraint("Symmetric", 18, 2, 60, 2, -1, 1),
    Sketcher.Constraint("Symmetric", 25, 2, 67, 2, -1, 1),
    Sketcher.Constraint("Symmetric", 32, 2, 74, 2, -1, 1),
    Sketcher.Constraint("Symmetric", 39, 2, 81, 2, -1, 1),
    Sketcher.Constraint("Symmetric", 30, 2, 44, 2, -2),
    Sketcher.Constraint("Symmetric", 23, 2, 51, 2, -2),
    Sketcher.Constraint("PointOnObject", 15, 2, -1),
    Sketcher.Constraint("PointOnObject", 36, 2, -2),
    Sketcher.Constraint("Perpendicular", 0, 21),
    Sketcher.Constraint("Perpendicular", 2, 23),
    Sketcher.Constraint("Perpendicular", 4, 25),
    Sketcher.Constraint("Perpendicular", 5, 26),
    Sketcher.Constraint("Perpendicular", 7, 28),
    Sketcher.Constraint("Perpendicular", 9, 30),
    Sketcher.Constraint("Perpendicular", 11, 32),
    Sketcher.Constraint("Perpendicular", 12, 33),
    Sketcher.Constraint("Perpendicular", 14, 35),
    Sketcher.Constraint("Perpendicular", 18, 39),
    Sketcher.Constraint("Perpendicular", 19, 40),
    Sketcher.Constraint("Perpendicular", 21, 42),
    Sketcher.Constraint("Perpendicular", 23, 44),
    Sketcher.Constraint("Perpendicular", 25, 46),
    Sketcher.Constraint("Perpendicular", 26, 47),
    Sketcher.Constraint("Perpendicular", 28, 49),
    Sketcher.Constraint("Perpendicular", 30, 51),
    Sketcher.Constraint("Perpendicular", 32, 53),
    Sketcher.Constraint("Perpendicular", 33, 54),
    Sketcher.Constraint("Perpendicular", 35, 56),
    Sketcher.Constraint("Perpendicular", 39, 60),
    Sketcher.Constraint("Perpendicular", 40, 61),
    Sketcher.Constraint("Perpendicular", 42, 63),
    Sketcher.Constraint("Perpendicular", 44, 65),
    Sketcher.Constraint("Perpendicular", 46, 67),
    Sketcher.Constraint("Perpendicular", 47, 68),
    Sketcher.Constraint("Perpendicular", 49, 70),
    Sketcher.Constraint("Perpendicular", 51, 72),
    Sketcher.Constraint("Perpendicular", 53, 74),
    Sketcher.Constraint("Perpendicular", 54, 75),
    Sketcher.Constraint("Perpendicular", 56, 77),
    Sketcher.Constraint("Perpendicular", 60, 81),
    Sketcher.Constraint("Perpendicular", 61, 82),
    Sketcher.Constraint("Horizontal", 29, 2, 43, 2),
    Sketcher.Constraint("Equal", 58, 37),
    Sketcher.Constraint("Equal", 0, 2),
    Sketcher.Constraint("Equal", 4, 5),
    Sketcher.Constraint("Equal", 2, 7),
    Sketcher.Constraint("Equal", 7, 9),
    Sketcher.Constraint("Equal", 5, 11),
    Sketcher.Constraint("Equal", 11, 12),
    Sketcher.Constraint("Equal", 9, 14),
    Sketcher.Constraint("Equal", 12, 18),
    Sketcher.Constraint("Equal", 18, 19),
    Sketcher.Constraint("Equal", 14, 21),
    Sketcher.Constraint("Equal", 19, 25),
    Sketcher.Constraint("Equal", 25, 26),
    Sketcher.Constraint("Equal", 23, 28),
    Sketcher.Constraint("Equal", 26, 32),
    Sketcher.Constraint("Equal", 32, 33),
    Sketcher.Constraint("Equal", 30, 35),
    Sketcher.Constraint("Equal", 33, 39),
    Sketcher.Constraint("Equal", 39, 40),
    Sketcher.Constraint("Radius", 1, Q("10 mm")),
    Sketcher.Constraint("Diameter", 84, Q("4.5 mm")),
    Sketcher.Constraint("Angle", 0, Q("110 deg")),
    Sketcher.Constraint("Angle", 2, Q("-60 deg")),
    Sketcher.Constraint("Angle", 7, Q("140 deg")),
    Sketcher.Constraint("Angle", 14, Q("170 deg")),
    Sketcher.Constraint("DistanceX", 16, 1, 16, 2, Q("0.5 mm")),
    Sketcher.Constraint("DistanceX", -1, 1, 1, 2, Q("5 mm")),
    Sketcher.Constraint("DistanceY", 8, 2, -1, 1, Q("5 mm")),
    Sketcher.Constraint("Distance", 0, Q("0.5 mm")),
    Sketcher.Constraint("Angle", 4, Q("39.75 deg")),
    Sketcher.Constraint("Angle", 5, Q("40.25 deg")),
    Sketcher.Constraint("Angle", 11, Q("69.75 deg")),
    Sketcher.Constraint("Angle", 12, Q("70.25 deg")),
    Sketcher.Constraint("Angle", 18, Q("99.75 deg")),
    Sketcher.Constraint("Angle", 19, Q("100.25 deg")),
    Sketcher.Constraint("Radius", 3, Q("10.339448 mm")),
    Sketcher.Constraint("DistanceX", -1, 1, 0, 2, Q("3.420201 mm")),
    Sketcher.Constraint("DistanceY", 4, 2, -1, 1, Q("13.7888 mm")),
    Sketcher.Constraint("DistanceX", -1, 1, 10, 2, Q("16.860099 mm")),
    Sketcher.Constraint("DistanceY", -1, 1, 21, 2, Q("3.420201 mm")),
    Sketcher.Constraint("DistanceX", -1, 1, 25, 2, Q("13.7888 mm")),
    Sketcher.Constraint("DistanceY", -1, 1, 31, 2, Q("16.860099 mm")),
    Sketcher.Constraint("Distance", 4, Q("0.157079 mm")),
])
pad1 = doc.addObject("PartDesign::Pad", "Pad")
body.addObject(pad1)
pad1.Profile = sketch1
pad1.Length = 10
body2 = doc.addObject("PartDesign::Body", "Body001")

# Sketch on YZ plane
sketch2 = doc.addObject("Sketcher::SketchObject", "Sketch001")
body2.addObject(sketch2)
sketch2.AttachmentSupport = (doc.getObject("YZ_Plane001"), [""])
sketch2.MapMode = "FlatFace"
sketch2.AttachmentOffset = App.Placement(V(0, 0, 10), App.Rotation())
sketch2.addGeometry(Part.Circle(V(0, 0, 0), V(0, 0, 1), 2.2), False)
sketch2.addConstraint([
    Sketcher.Constraint("Coincident", 0, 3, -1, 1),
    Sketcher.Constraint("Diameter", 0, Q("4.5 mm")),
])
pad2 = doc.addObject("PartDesign::Pad", "Pad001")
body2.addObject(pad2)
pad2.Profile = sketch2
pad2.Length = 10

doc.recompute()
